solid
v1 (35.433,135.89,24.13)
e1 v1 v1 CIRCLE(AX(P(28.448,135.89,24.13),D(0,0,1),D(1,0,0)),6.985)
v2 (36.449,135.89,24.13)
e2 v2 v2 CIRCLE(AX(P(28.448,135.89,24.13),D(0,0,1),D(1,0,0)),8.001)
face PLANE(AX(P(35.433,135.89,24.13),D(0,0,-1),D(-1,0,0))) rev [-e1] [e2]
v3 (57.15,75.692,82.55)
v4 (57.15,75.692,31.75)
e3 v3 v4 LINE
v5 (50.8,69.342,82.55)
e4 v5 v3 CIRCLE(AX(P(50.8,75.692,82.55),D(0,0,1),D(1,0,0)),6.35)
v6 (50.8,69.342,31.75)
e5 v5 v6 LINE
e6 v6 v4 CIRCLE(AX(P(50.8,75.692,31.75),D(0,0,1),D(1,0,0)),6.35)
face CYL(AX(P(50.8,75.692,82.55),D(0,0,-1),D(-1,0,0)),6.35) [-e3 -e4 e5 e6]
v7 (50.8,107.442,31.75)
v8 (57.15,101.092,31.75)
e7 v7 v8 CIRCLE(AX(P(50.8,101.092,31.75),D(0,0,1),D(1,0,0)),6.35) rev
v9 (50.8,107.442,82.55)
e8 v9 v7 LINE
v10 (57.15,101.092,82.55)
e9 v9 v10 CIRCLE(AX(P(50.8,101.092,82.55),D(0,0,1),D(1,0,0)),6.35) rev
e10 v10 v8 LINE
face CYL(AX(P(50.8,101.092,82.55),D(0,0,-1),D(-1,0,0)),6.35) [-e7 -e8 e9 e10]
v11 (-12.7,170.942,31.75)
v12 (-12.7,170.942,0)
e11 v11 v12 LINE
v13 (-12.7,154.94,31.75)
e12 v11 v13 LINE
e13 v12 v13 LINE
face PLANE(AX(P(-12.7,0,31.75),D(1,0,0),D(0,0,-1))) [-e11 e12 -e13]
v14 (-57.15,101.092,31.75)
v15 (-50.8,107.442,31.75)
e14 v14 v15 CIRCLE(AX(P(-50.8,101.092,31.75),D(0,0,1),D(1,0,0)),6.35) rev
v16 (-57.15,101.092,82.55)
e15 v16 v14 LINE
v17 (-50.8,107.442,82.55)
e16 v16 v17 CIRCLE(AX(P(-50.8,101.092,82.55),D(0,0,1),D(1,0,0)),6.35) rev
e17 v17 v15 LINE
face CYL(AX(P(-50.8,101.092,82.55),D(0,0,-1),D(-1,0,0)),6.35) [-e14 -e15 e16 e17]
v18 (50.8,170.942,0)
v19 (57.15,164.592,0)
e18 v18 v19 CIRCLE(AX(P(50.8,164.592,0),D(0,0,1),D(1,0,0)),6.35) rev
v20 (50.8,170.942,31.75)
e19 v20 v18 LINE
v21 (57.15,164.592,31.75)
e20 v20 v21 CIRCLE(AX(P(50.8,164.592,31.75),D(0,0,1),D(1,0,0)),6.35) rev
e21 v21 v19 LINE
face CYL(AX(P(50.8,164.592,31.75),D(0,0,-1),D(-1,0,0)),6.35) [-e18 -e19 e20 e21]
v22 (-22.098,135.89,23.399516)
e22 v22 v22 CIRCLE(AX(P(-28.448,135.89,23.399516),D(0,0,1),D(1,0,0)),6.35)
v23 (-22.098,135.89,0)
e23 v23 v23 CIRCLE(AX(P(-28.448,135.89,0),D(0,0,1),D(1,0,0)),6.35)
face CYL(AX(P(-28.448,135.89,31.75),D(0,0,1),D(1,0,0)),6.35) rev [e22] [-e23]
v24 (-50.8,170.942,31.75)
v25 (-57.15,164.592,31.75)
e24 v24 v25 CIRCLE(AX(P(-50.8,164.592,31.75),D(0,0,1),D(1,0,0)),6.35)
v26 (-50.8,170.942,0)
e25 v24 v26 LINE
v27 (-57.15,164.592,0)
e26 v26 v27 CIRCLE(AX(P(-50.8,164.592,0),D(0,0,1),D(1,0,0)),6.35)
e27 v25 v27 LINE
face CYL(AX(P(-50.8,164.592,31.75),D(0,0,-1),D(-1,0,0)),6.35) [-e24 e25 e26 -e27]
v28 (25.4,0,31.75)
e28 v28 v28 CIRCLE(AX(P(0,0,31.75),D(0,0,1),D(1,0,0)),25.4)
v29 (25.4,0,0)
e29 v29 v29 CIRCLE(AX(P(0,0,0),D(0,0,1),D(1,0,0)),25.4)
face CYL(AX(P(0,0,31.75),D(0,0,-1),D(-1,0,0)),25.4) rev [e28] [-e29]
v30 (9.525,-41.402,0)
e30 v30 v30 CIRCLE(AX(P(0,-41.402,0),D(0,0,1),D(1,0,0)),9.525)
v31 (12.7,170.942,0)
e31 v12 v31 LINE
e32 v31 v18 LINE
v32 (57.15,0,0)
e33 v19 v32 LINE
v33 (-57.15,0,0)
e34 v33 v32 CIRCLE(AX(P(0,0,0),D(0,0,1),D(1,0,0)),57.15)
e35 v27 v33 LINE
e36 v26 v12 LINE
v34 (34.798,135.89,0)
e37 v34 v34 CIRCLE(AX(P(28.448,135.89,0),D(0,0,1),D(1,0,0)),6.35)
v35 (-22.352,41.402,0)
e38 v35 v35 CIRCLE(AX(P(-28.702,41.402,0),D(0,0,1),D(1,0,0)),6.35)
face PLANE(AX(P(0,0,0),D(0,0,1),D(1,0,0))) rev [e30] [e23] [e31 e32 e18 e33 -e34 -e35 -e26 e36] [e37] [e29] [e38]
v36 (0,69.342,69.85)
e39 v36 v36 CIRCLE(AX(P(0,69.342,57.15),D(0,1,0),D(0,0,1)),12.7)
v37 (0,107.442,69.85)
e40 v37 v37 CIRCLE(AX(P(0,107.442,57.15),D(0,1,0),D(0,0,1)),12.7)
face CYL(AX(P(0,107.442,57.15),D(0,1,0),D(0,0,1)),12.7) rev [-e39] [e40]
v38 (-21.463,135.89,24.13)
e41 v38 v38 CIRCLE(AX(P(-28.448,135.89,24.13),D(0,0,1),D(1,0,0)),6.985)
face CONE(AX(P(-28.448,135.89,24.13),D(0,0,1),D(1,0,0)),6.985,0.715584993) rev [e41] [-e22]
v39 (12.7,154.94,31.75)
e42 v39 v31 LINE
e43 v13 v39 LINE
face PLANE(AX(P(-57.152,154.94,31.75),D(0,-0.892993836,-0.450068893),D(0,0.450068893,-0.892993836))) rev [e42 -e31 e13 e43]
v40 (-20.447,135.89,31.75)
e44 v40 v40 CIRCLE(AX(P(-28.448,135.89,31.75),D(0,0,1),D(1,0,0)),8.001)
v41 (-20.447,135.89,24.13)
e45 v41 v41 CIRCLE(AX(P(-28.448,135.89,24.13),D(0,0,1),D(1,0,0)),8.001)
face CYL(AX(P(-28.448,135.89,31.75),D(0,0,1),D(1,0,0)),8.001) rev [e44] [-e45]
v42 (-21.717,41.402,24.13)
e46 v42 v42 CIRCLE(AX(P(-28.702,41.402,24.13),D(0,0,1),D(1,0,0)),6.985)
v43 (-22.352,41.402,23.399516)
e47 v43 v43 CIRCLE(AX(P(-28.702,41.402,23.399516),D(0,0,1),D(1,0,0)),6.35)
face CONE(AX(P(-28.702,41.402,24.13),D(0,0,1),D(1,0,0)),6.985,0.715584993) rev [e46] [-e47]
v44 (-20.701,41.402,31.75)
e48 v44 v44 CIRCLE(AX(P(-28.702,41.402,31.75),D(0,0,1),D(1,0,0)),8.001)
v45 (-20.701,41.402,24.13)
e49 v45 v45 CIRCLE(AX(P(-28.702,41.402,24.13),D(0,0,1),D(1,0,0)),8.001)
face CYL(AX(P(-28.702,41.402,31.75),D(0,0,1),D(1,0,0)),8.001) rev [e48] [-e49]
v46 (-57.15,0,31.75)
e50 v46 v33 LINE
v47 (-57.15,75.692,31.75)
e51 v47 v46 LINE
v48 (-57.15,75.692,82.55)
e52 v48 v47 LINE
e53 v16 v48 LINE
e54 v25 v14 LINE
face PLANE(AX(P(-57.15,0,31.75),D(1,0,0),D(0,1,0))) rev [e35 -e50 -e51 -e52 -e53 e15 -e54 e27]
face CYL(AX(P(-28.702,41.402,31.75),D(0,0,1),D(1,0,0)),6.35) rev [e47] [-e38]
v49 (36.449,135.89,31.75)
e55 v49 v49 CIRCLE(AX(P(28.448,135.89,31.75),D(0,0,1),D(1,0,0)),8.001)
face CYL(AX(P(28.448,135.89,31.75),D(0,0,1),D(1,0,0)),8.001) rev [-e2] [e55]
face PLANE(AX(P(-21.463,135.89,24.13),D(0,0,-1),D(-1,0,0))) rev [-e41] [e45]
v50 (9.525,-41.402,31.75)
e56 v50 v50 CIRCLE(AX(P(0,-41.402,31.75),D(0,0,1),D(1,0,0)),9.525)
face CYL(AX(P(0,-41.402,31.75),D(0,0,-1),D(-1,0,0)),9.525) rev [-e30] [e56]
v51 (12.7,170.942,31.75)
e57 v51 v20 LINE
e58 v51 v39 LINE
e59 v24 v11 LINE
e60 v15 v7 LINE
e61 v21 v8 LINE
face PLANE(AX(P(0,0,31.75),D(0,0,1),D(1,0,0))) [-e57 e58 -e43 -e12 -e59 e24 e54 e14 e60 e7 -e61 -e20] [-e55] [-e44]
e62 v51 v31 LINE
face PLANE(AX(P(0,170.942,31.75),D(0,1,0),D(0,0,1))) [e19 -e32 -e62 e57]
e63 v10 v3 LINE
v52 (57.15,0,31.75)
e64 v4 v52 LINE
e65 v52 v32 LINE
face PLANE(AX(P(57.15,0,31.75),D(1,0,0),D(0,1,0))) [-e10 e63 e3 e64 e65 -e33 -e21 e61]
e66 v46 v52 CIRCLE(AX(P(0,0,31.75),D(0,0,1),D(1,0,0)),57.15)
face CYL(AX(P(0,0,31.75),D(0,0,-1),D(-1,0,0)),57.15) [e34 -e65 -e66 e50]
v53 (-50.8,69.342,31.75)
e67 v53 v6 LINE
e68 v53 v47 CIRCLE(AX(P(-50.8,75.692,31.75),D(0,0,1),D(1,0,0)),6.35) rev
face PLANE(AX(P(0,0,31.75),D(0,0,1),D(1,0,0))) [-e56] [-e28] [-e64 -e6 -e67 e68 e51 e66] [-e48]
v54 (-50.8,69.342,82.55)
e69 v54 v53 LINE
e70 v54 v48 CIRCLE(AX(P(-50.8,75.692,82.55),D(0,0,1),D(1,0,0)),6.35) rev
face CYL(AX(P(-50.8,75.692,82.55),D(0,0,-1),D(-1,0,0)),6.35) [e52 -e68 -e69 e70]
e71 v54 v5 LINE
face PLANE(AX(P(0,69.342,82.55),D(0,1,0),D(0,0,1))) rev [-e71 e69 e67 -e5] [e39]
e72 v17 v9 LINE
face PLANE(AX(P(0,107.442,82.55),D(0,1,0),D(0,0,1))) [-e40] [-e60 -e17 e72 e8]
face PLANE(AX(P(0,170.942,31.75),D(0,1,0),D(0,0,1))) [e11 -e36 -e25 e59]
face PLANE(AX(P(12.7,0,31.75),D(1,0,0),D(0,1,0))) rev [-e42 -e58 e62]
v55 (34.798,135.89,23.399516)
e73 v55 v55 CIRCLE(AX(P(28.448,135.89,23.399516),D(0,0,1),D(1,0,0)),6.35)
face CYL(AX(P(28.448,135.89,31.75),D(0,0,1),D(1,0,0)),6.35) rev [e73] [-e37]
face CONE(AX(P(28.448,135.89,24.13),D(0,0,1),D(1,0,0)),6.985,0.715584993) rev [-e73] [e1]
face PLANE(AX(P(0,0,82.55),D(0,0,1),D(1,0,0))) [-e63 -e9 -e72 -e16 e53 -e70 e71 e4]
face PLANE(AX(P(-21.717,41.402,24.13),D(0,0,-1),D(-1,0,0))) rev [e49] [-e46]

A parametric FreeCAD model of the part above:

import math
import FreeCAD as App
import Part
import Sketcher

V = App.Vector
Q = App.Units.Quantity


def add_polygon(sketch, points):
    """Adds a closed chain of lines whose ends are joined by coincident constraints."""
    first, n = sketch.GeometryCount, len(points)
    for a, b in zip(points, points[1:] + points[:1]):
        sketch.addGeometry(Part.LineSegment(App.Vector(*a, 0), App.Vector(*b, 0)), False)
    for i in range(n):
        sketch.addConstraint(Sketcher.Constraint("Coincident", first + i, 2, first + (i + 1) % n, 1))

doc = App.newDocument("Part")
body = doc.addObject("PartDesign::Body", "Body")

# Sketch on XY plane
sketch1 = body.newObject("Sketcher::SketchObject", "Sketch")
sketch1.AttachmentSupport = (doc.getObject("XY_Plane"), [""])
sketch1.MapMode = "FlatFace"
sketch1.addGeometry([
    Part.LineSegment(V(50.8, 170.942, 0), V(12.7, 170.942, 0)),  # 0
    Part.LineSegment(V(12.7, 170.942, 0), V(12.7, 154.94, 0)),  # 1
    Part.LineSegment(V(12.7, 154.94, 0), V(-12.7, 154.94, 0)),  # 2
    Part.LineSegment(V(-12.7, 154.94, 0), V(-12.7, 170.942, 0)),  # 3
    Part.LineSegment(V(-12.7, 170.942, 0), V(-50.8, 170.942, 0)),  # 4
    Part.ArcOfCircle(Part.Circle(V(-50.8, 164.592, 0), V(0, 0, 1), 6.35), math.radians(90), math.radians(180)),  # 5
    Part.LineSegment(V(-57.15, 164.592, 0), V(-57.15, 101.092, 0)),  # 6
    Part.ArcOfCircle(Part.Circle(V(-50.8, 101.092, 0), V(0, 0, 1), 6.35), math.radians(90), math.radians(180)),  # 7
    Part.LineSegment(V(-50.8, 107.442, 0), V(50.8, 107.442, 0)),  # 8
    Part.ArcOfCircle(Part.Circle(V(50.8, 101.092, 0), V(0, 0, 1), 6.35), math.radians(0), math.radians(90)),  # 9
    Part.LineSegment(V(57.15, 101.092, 0), V(57.15, 164.592, 0)),  # 10
    Part.ArcOfCircle(Part.Circle(V(50.8, 164.592, 0), V(0, 0, 1), 6.35), math.radians(0), math.radians(90)),  # 11
], False)
sketch1.addConstraint([
    Sketcher.Constraint("Coincident", 0, 2, 1, 1),
    Sketcher.Constraint("Coincident", 1, 2, 2, 1),
    Sketcher.Constraint("Coincident", 2, 2, 3, 1),
    Sketcher.Constraint("Coincident", 3, 2, 4, 1),
    Sketcher.Constraint("Tangent", 4, 2, 5, 1),
    Sketcher.Constraint("Tangent", 5, 2, 6, 1),
    Sketcher.Constraint("Tangent", 6, 2, 7, 2),
    Sketcher.Constraint("Tangent", 7, 1, 8, 1),
    Sketcher.Constraint("Tangent", 8, 2, 9, 2),
    Sketcher.Constraint("Tangent", 9, 1, 10, 1),
    Sketcher.Constraint("Tangent", 10, 2, 11, 1),
    Sketcher.Constraint("Tangent", 11, 2, 0, 1),
    Sketcher.Constraint("Horizontal", 0),
    Sketcher.Constraint("Vertical", 1),
    Sketcher.Constraint("Horizontal", 2),
    Sketcher.Constraint("Vertical", 3),
    Sketcher.Constraint("Horizontal", 4),
    Sketcher.Constraint("Vertical", 6),
    Sketcher.Constraint("Horizontal", 8),
    Sketcher.Constraint("Vertical", 10),
    Sketcher.Constraint("Equal", 5, 7),
    Sketcher.Constraint("Equal", 7, 9),
    Sketcher.Constraint("Equal", 9, 11),
    Sketcher.Constraint("Symmetric", 5, 3, 11, 3, -2),
    Sketcher.Constraint("Equal", 0, 4),
    Sketcher.Constraint("DistanceX", 2, 2, 2, 1, Q("1 in")),
    Sketcher.Constraint("DistanceX", 8, 1, 8, 2, Q("4 in")),
    Sketcher.Constraint("Radius", 5, Q("0.25 in")),
    Sketcher.Constraint("DistanceY", 6, 2, 6, 1, Q("2.5 in")),
    Sketcher.Constraint("DistanceY", 1, 2, 1, 1, Q("0.63 in")),
    Sketcher.Constraint("DistanceY", -1, 1, 1, 2, Q("6.1 in")),
])
pad1 = body.newObject("PartDesign::Pad", "Pad")
pad1.Profile = sketch1
pad1.Length = Q("1.25 in")
body2 = doc.addObject("PartDesign::Body", "Body001")

# Sketch on XY plane
sketch2 = body2.newObject("Sketcher::SketchObject", "Sketch001")
sketch2.AttachmentSupport = (doc.getObject("XY_Plane001"), [""])
sketch2.MapMode = "FlatFace"
sketch2.addGeometry([
    Part.LineSegment(V(57.15, 0, 0), V(57.15, 75.692, 0)),  # 0
    Part.ArcOfCircle(Part.Circle(V(50.8, 75.692, 0), V(0, 0, 1), 6.35), math.radians(-90), math.radians(0)),  # 1
    Part.LineSegment(V(50.8, 69.342, 0), V(-50.8, 69.342, 0)),  # 2
    Part.ArcOfCircle(Part.Circle(V(-50.8, 75.692, 0), V(0, 0, 1), 6.35), math.radians(180), math.radians(270)),  # 3
    Part.LineSegment(V(-57.15, 75.692, 0), V(-57.15, 0, 0)),  # 4
    Part.ArcOfCircle(Part.Circle(V(0, 0, 0), V(0, 0, 1), 57.15), math.radians(180), math.radians(360)),  # 5
    Part.Circle(V(0, -41.402, 0), V(0, 0, 1), 9.525),  # 6
    Part.Circle(V(0, 0, 0), V(0, 0, 1), 25.4),  # 7
], False)
sketch2.addConstraint([
    Sketcher.Constraint("Tangent", 0, 2, 1, 2),
    Sketcher.Constraint("Tangent", 1, 1, 2, 1),
    Sketcher.Constraint("Tangent", 2, 2, 3, 2),
    Sketcher.Constraint("Tangent", 3, 1, 4, 1),
    Sketcher.Constraint("Tangent", 4, 2, 5, 1),
    Sketcher.Constraint("Tangent", 5, 2, 0, 1),
    Sketcher.Constraint("Vertical", 0),
    Sketcher.Constraint("Horizontal", 2),
    Sketcher.Constraint("Vertical", 4),
    Sketcher.Constraint("Coincident", 5, 3, -1, 1),
    Sketcher.Constraint("Coincident", 7, 3, -1, 1),
    Sketcher.Constraint("Equal", 1, 3),
    Sketcher.Constraint("PointOnObject", 6, 3, -2),
    Sketcher.Constraint("Diameter", 7, Q("2 in")),
    Sketcher.Constraint("Diameter", 6, Q("0.75 in")),
    Sketcher.Constraint("DistanceX", 2, 2, 2, 1, Q("4 in")),
    Sketcher.Constraint("Radius", 1, Q("0.25 in")),
    Sketcher.Constraint("DistanceY", 0, 1, 0, 2, Q("2.98 in")),
    Sketcher.Constraint("DistanceY", 6, 3, -1, 1, Q("1.63 in")),
])
pad2 = body2.newObject("PartDesign::Pad", "Pad001")
pad2.Profile = sketch2
pad2.Length = Q("1.25 in")
body.AllowCompound = True
doc.recompute()

boolean = body.newObject("PartDesign::Boolean", "Boolean")
boolean.Type = "Fuse"
boolean.addObjects([body2])

# Sketch on XY plane
sketch3 = body.newObject("Sketcher::SketchObject", "Sketch002")
sketch3.AttachmentSupport = (doc.getObject("XY_Plane"), [""])
sketch3.MapMode = "FlatFace"
sketch3.addGeometry([
    Part.LineSegment(V(57.15, 75.692, 0), V(57.15, 101.092, 0)),  # 0
    Part.ArcOfCircle(Part.Circle(V(50.8, 101.092, 0), V(0, 0, 1), 6.35), math.radians(0), math.radians(90)),  # 1
    Part.LineSegment(V(50.8, 107.442, 0), V(-50.8, 107.442, 0)),  # 2
    Part.ArcOfCircle(Part.Circle(V(-50.8, 101.092, 0), V(0, 0, 1), 6.35), math.radians(90), math.radians(180)),  # 3
    Part.LineSegment(V(-57.15, 101.092, 0), V(-57.15, 75.692, 0)),  # 4
    Part.ArcOfCircle(Part.Circle(V(-50.8, 75.692, 0), V(0, 0, 1), 6.35), math.radians(180), math.radians(270)),  # 5
    Part.LineSegment(V(-50.8, 69.342, 0), V(50.8, 69.342, 0)),  # 6
    Part.ArcOfCircle(Part.Circle(V(50.8, 75.692, 0), V(0, 0, 1), 6.35), math.radians(-90), math.radians(0)),  # 7
], False)
sketch3.addConstraint([
    Sketcher.Constraint("Tangent", 0, 2, 1, 1),
    Sketcher.Constraint("Tangent", 1, 2, 2, 1),
    Sketcher.Constraint("Tangent", 2, 2, 3, 1),
    Sketcher.Constraint("Tangent", 3, 2, 4, 1),
    Sketcher.Constraint("Tangent", 4, 2, 5, 1),
    Sketcher.Constraint("Tangent", 5, 2, 6, 1),
    Sketcher.Constraint("Tangent", 6, 2, 7, 1),
    Sketcher.Constraint("Tangent", 7, 2, 0, 1),
    Sketcher.Constraint("Vertical", 0),
    Sketcher.Constraint("Horizontal", 2),
    Sketcher.Constraint("Vertical", 4),
    Sketcher.Constraint("Horizontal", 6),
    Sketcher.Constraint("Equal", 1, 3),
    Sketcher.Constraint("Equal", 3, 5),
    Sketcher.Constraint("Equal", 5, 7),
    Sketcher.Constraint("DistanceX", 2, 2, 2, 1, Q("4 in")),
    Sketcher.Constraint("DistanceY", 0, 1, 0, 2, Q("1 in")),
    Sketcher.Constraint("Radius", 1, Q("0.25 in")),
    Sketcher.Constraint("DistanceX", -1, 1, 1, 3, Q("2 in")),
    Sketcher.Constraint("DistanceY", -1, 1, 1, 3, Q("3.98 in")),
])
pad3 = body.newObject("PartDesign::Pad", "Pad002")
pad3.Profile = sketch3
pad3.Length = Q("3.25 in")

# Sketch on YZ plane
sketch4 = body.newObject("Sketcher::SketchObject", "Sketch003")
sketch4.AttachmentSupport = (doc.getObject("YZ_Plane"), [""])
sketch4.MapMode = "FlatFace"
sketch4.AttachmentOffset = App.Placement(V(0, 0, 0.5 * 25.4), App.Rotation())
add_polygon(sketch4, [(154.94, 31.75), (170.942, 0), (154.94, 0)])  # lines 0-2
sketch4.addConstraint([
    Sketcher.Constraint("Horizontal", 1),
    Sketcher.Constraint("Vertical", 2),
    Sketcher.Constraint("PointOnObject", 0, 2, -1),
    Sketcher.Constraint("DistanceX", 1, 2, 1, 1, Q("0.63 in")),
    Sketcher.Constraint("DistanceY", 2, 1, 2, 2, Q("1.25 in")),
    Sketcher.Constraint("DistanceX", -1, 1, 1, 2, Q("6.1 in")),
])
pad4 = body.newObject("PartDesign::Pad", "Pad003")
pad4.Profile = sketch4
pad4.Type = "UpToFirst"
pad4.Reversed = True

# Sketch on XZ plane
sketch5 = body.newObject("Sketcher::SketchObject", "Sketch004")
sketch5.AttachmentSupport = (doc.getObject("XZ_Plane"), [""])
sketch5.MapMode = "FlatFace"
sketch5.AttachmentOffset = App.Placement(V(0, 0, -4.23 * 25.4), App.Rotation())
sketch5.addGeometry(Part.Circle(V(0, 57.15, 0), V(0, 0, 1), 12.7), False)
sketch5.addConstraint([
    Sketcher.Constraint("PointOnObject", 0, 3, -2),
    Sketcher.Constraint("Diameter", 0, Q("1 in")),
    Sketcher.Constraint("DistanceY", -1, 1, 0, 3, Q("2.25 in")),
])
doc.recompute()
hole = body.newObject("PartDesign::Hole", "Hole")
hole.Profile = sketch5
hole.ThreadType = "None"
hole.Diameter = Q("1 in")
hole.DepthType = "ThroughAll"
hole.Reversed = True

# Sketch on YZ plane
sketch6 = body.newObject("Sketcher::SketchObject", "Sketch005")
sketch6.AttachmentSupport = (doc.getObject("YZ_Plane"), [""])
sketch6.MapMode = "FlatFace"
sketch6.AttachmentOffset = App.Placement(V(0, 0, 1.12 * 25.4), App.Rotation())
add_polygon(sketch6, [(135.89, 0), (135.89, 31.75), (127.889, 31.75), (127.889, 24.13), (128.905, 24.13), (129.54, 23.399516), (129.54, 0)])  # lines 0-6
sketch6.addGeometry(Part.LineSegment(V(135.89, 31.75, 0), V(135.89, 0, 0)), True)  # axis
sketch6.addConstraint([
    Sketcher.Constraint("Vertical", 0),
    Sketcher.Constraint("Horizontal", 1),
    Sketcher.Constraint("Vertical", 2),
    Sketcher.Constraint("Horizontal", 3),
    Sketcher.Constraint("Vertical", 5),
    Sketcher.Constraint("Horizontal", 6),
    Sketcher.Constraint("Vertical", 7),
    Sketcher.Constraint("Coincident", 7, 1, 0, 2),
    Sketcher.Constraint("PointOnObject", 5, 2, -1),
    Sketcher.Constraint("PointOnObject", 7, 2, -1),
    Sketcher.Constraint("DistanceY", 2, 2, 2, 1, Q("0.3 in")),
    Sketcher.Constraint("Angle", 4, Q("-49 deg")),
    Sketcher.Constraint("DistanceX", 3, 1, 3, 2, Q("0.04 in")),
    Sketcher.Constraint("DistanceX", 6, 1, 6, 2, Q("0.25 in")),
    Sketcher.Constraint("DistanceY", 0, 1, 0, 2, Q("1.25 in")),
    Sketcher.Constraint("DistanceX", -1, 1, 4, 2, Q("5.1 in")),
    Sketcher.Constraint("DistanceX", 1, 2, 1, 1, Q("0.315 in")),
])
groove = body.newObject("PartDesign::Groove", "Groove")
groove.Profile = sketch6
groove.ReferenceAxis = (sketch6, ["Axis0"])
groove.Angle = 360
doc.recompute()

linearpattern = body.newObject("PartDesign::LinearPattern", "LinearPattern")
linearpattern.Originals = [groove]
linearpattern.Direction = (doc.getObject("X_Axis"), [""])
linearpattern.Mode = "offset"
linearpattern.Offset = Q("2.24 in")
linearpattern.Occurrences = 2
linearpattern.Reversed = True
body.Tip = linearpattern
doc.recompute()

datumline = body.newObject("PartDesign::Line", "DatumLine")
datumline.Placement = App.Placement(V(0, 0, 0), App.Rotation(V(0, 0, 1), V(-0.517536847, -0.855660921, 0)))
linearpattern2 = body.newObject("PartDesign::LinearPattern", "LinearPattern001")
linearpattern2.Originals = [groove]
linearpattern2.Direction = (datumline, [""])
linearpattern2.Mode = "offset"
linearpattern2.Offset = 110.42692
linearpattern2.Occurrences = 2
body.Tip = linearpattern2

doc.recompute()
